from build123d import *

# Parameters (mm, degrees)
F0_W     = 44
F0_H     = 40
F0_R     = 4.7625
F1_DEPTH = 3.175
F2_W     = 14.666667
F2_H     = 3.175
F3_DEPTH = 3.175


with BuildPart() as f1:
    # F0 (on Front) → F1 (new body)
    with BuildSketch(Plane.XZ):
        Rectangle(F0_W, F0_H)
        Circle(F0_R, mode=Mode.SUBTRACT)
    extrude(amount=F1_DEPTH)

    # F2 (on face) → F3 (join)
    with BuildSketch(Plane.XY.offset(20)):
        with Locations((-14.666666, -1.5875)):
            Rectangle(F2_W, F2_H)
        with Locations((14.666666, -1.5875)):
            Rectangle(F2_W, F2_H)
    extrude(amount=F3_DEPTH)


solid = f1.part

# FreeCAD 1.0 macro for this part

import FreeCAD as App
import Part
import Sketcher
from FreeCAD import Vector
Q = App.Units.Quantity

doc = App.newDocument("Part")
body = doc.addObject("PartDesign::Body", "Body")

sketch1 = body.newObject("Sketcher::SketchObject", "Sketch")
sketch1.AttachmentSupport = (doc.getObject("XZ_Plane"), [""])
sketch1.MapMode = "FlatFace"
sketch1.addGeometry(Part.LineSegment(Vector(-22, 20, 0), Vector(-22, -20, 0)), False)
sketch1.addGeometry(Part.LineSegment(Vector(-22, -20, 0), Vector(22, -20, 0)), False)
sketch1.addGeometry(Part.LineSegment(Vector(22, -20, 0), Vector(22, 20, 0)), False)
sketch1.addGeometry(Part.LineSegment(Vector(22, 20, 0), Vector(-22, 20, 0)), False)
sketch1.addGeometry(Part.Circle(Vector(0, 0, 0), Vector(0, 0, 1), 4.8), False)
sketch1.addConstraint(Sketcher.Constraint("Coincident", 0, 2, 1, 1))
sketch1.addConstraint(Sketcher.Constraint("Coincident", 1, 2, 2, 1))
sketch1.addConstraint(Sketcher.Constraint("Coincident", 2, 2, 3, 1))
sketch1.addConstraint(Sketcher.Constraint("Coincident", 3, 2, 0, 1))
sketch1.addConstraint(Sketcher.Constraint("Vertical", 0))
sketch1.addConstraint(Sketcher.Constraint("Horizontal", 1))
sketch1.addConstraint(Sketcher.Constraint("Vertical", 2))
sketch1.addConstraint(Sketcher.Constraint("Horizontal", 3))
sketch1.addConstraint(Sketcher.Constraint("Coincident", 4, 3, -1, 1))
sketch1.addConstraint(Sketcher.Constraint("Symmetric", 0, 2, 2, 2, -1, 1))
sketch1.addConstraint(Sketcher.Constraint("DistanceX", 1, 1, 1, 2, Q("44 mm")))
sketch1.addConstraint(Sketcher.Constraint("DistanceY", 0, 2, 0, 1, Q("40 mm")))
sketch1.addConstraint(Sketcher.Constraint("Diameter", 4, Q("9.525 mm")))
pad1 = body.newObject("PartDesign::Pad", "Pad")
pad1.Profile = sketch1
pad1.Length = 3.175

sketch2 = body.newObject("Sketcher::SketchObject", "Sketch001")
sketch2.AttachmentSupport = (doc.getObject("XY_Plane"), [""])
sketch2.MapMode = "FlatFace"
sketch2.AttachmentOffset = App.Placement(Vector(0, 0, 20), App.Rotation())
sketch2.addGeometry(Part.LineSegment(Vector(-22, 0, 0), Vector(-22, -3.2, 0)), False)
sketch2.addGeometry(Part.LineSegment(Vector(-22, -3.2, 0), Vector(-7.3, -3.2, 0)), False)
sketch2.addGeometry(Part.LineSegment(Vector(-7.3, -3.2, 0), Vector(-7.3, 0, 0)), False)
sketch2.addGeometry(Part.LineSegment(Vector(-7.3, 0, 0), Vector(-22, 0, 0)), False)
sketch2.addGeometry(Part.LineSegment(Vector(7.3, 0, 0), Vector(7.3, -3.2, 0)), False)
sketch2.addGeometry(Part.LineSegment(Vector(7.3, -3.2, 0), Vector(22, -3.2, 0)), False)
sketch2.addGeometry(Part.LineSegment(Vector(22, -3.2, 0), Vector(22, 0, 0)), False)
sketch2.addGeometry(Part.LineSegment(Vector(22, 0, 0), Vector(7.3, 0, 0)), False)
sketch2.addConstraint(Sketcher.Constraint("Coincident", 0, 2, 1, 1))
sketch2.addConstraint(Sketcher.Constraint("Coincident", 1, 2, 2, 1))
sketch2.addConstraint(Sketcher.Constraint("Coincident", 2, 2, 3, 1))
sketch2.addConstraint(Sketcher.Constraint("Coincident", 3, 2, 0, 1))
sketch2.addConstraint(Sketcher.Constraint("Coincident", 4, 2, 5, 1))
sketch2.addConstraint(Sketcher.Constraint("Coincident", 5, 2, 6, 1))
sketch2.addConstraint(Sketcher.Constraint("Coincident", 6, 2, 7, 1))
sketch2.addConstraint(Sketcher.Constraint("Coincident", 7, 2, 4, 1))
sketch2.addConstraint(Sketcher.Constraint("Vertical", 0))
sketch2.addConstraint(Sketcher.Constraint("Horizontal", 1))
sketch2.addConstraint(Sketcher.Constraint("Vertical", 2))
sketch2.addConstraint(Sketcher.Constraint("Horizontal", 3))
sketch2.addConstraint(Sketcher.Constraint("Vertical", 4))
sketch2.addConstraint(Sketcher.Constraint("Horizontal", 5))
sketch2.addConstraint(Sketcher.Constraint("Vertical", 6))
sketch2.addConstraint(Sketcher.Constraint("Horizontal", 7))
sketch2.addConstraint(Sketcher.Constraint("Symmetric", 3, 2, 6, 2, -1, 1))
sketch2.addConstraint(Sketcher.Constraint("Symmetric", 1, 2, 4, 2, -2))
sketch2.addConstraint(Sketcher.Constraint("PointOnObject", 2, 2, -1))
sketch2.addConstraint(Sketcher.Constraint("DistanceX", 0, 2, -1, 1, Q("22 mm")))
sketch2.addConstraint(Sketcher.Constraint("DistanceY", 0, 2, 0, 1, Q("3.175 mm")))
sketch2.addConstraint(Sketcher.Constraint("DistanceX", 1, 1, 1, 2, Q("14.666667 mm")))
pad2 = body.newObject("PartDesign::Pad", "Pad001")
pad2.Profile = sketch2
pad2.Length = 3.175

doc.recompute()
